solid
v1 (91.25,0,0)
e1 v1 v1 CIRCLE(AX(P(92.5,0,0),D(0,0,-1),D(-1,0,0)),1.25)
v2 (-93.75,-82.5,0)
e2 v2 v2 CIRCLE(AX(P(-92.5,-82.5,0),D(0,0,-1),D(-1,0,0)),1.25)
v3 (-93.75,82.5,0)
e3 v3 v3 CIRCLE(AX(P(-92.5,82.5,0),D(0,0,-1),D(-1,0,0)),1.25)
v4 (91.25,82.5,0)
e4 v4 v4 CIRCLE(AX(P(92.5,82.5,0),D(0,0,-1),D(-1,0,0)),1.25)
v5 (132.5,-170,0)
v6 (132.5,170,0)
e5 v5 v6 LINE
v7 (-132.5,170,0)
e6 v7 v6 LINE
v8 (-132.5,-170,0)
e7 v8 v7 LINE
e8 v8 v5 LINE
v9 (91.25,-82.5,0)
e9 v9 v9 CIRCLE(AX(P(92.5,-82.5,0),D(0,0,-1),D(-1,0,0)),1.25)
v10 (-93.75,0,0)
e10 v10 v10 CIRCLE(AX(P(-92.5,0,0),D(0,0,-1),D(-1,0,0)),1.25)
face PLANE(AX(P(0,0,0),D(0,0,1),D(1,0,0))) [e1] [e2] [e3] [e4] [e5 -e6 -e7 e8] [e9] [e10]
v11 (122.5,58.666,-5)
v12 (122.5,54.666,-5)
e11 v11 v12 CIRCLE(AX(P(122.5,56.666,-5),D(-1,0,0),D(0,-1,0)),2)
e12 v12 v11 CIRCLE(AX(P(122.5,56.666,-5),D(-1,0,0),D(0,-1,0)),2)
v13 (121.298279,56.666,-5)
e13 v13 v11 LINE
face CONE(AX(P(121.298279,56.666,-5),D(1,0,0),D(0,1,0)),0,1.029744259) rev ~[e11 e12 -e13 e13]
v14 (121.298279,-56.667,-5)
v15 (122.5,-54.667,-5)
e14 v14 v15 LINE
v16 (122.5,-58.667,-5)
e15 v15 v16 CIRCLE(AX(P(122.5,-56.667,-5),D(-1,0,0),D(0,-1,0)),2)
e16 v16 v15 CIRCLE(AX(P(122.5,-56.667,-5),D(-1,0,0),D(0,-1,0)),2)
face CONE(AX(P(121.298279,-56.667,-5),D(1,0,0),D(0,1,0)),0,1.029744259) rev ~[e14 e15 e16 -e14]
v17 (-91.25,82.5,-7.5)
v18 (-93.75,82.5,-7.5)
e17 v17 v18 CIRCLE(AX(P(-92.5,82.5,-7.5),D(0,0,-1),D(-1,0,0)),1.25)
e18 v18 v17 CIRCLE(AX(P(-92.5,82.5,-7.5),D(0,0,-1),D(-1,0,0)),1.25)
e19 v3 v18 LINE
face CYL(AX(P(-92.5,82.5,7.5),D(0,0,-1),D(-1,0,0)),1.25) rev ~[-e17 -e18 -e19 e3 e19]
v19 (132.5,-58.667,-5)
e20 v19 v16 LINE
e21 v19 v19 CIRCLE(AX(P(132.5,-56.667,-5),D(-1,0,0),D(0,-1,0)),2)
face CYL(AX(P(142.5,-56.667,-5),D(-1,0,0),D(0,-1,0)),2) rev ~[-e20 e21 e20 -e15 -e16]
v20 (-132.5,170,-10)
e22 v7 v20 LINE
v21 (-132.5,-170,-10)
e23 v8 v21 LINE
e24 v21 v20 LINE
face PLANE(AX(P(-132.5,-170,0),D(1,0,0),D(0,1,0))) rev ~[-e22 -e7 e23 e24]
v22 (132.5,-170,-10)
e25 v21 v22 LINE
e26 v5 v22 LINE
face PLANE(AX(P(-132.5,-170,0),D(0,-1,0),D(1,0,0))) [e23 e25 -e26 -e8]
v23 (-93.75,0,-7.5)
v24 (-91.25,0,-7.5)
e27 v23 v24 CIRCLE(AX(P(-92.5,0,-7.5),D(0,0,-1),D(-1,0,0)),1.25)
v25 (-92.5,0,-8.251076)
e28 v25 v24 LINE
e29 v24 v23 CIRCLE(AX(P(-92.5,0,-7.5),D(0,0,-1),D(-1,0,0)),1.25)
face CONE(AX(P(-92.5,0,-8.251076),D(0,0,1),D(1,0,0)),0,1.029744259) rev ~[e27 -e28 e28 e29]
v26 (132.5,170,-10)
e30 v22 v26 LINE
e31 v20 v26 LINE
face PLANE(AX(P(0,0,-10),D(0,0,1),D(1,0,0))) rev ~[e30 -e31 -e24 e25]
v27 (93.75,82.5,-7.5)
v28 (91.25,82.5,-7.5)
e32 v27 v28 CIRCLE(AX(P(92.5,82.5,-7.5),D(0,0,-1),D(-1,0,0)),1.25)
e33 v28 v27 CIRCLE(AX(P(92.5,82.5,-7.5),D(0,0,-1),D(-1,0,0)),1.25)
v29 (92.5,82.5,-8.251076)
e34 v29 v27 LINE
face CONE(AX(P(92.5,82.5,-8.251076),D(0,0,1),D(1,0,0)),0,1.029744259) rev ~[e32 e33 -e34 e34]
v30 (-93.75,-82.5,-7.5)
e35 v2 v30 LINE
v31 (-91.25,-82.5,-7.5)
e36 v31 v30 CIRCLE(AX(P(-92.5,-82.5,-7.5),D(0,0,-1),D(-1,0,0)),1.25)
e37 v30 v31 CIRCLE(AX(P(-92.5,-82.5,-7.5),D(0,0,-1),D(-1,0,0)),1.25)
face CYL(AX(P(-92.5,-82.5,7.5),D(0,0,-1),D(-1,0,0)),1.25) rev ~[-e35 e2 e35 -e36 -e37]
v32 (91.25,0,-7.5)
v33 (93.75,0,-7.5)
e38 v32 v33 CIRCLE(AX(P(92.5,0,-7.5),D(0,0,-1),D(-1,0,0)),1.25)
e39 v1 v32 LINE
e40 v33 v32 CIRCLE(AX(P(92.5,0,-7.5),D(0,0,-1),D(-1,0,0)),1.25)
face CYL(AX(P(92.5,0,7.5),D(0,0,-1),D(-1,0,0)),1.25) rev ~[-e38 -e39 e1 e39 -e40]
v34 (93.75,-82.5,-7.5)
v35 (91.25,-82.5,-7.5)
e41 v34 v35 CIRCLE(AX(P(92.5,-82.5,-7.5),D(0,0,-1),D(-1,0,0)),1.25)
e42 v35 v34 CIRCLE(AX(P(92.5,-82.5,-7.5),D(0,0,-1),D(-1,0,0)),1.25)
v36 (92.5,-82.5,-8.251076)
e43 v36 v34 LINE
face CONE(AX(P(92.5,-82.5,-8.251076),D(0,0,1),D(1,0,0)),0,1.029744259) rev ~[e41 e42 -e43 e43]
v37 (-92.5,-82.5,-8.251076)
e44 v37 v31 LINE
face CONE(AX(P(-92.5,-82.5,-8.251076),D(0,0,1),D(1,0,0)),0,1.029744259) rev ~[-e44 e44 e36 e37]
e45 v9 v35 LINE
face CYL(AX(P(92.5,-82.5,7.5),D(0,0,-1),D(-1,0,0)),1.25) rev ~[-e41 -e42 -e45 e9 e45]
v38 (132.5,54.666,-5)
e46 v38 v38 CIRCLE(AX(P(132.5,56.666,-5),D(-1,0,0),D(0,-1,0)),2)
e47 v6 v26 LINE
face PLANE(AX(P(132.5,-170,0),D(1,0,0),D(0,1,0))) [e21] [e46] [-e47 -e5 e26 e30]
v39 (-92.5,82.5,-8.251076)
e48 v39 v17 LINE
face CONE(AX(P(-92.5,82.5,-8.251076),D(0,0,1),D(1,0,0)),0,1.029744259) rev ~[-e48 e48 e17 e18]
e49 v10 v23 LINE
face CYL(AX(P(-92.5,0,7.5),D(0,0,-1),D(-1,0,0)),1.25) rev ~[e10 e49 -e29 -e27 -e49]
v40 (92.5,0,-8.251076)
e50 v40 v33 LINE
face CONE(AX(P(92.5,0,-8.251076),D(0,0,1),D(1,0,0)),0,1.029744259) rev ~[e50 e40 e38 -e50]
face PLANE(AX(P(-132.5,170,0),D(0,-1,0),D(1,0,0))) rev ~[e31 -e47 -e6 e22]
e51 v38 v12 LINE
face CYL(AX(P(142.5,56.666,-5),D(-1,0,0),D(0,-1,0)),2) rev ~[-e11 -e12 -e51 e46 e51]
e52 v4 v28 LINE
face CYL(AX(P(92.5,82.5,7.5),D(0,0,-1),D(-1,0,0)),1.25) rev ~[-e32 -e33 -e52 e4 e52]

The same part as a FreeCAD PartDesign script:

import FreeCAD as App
import Part
import Sketcher

V = App.Vector


def add_polygon(sketch, points):
    """Adds a closed chain of lines whose ends are joined by coincident constraints."""
    first, n = sketch.GeometryCount, len(points)
    for a, b in zip(points, points[1:] + points[:1]):
        sketch.addGeometry(Part.LineSegment(App.Vector(*a, 0), App.Vector(*b, 0)), False)
    for i in range(n):
        sketch.addConstraint(Sketcher.Constraint("Coincident", first + i, 2, first + (i + 1) % n, 1))

doc = App.newDocument("Part")
params = doc.addObject("Spreadsheet::Sheet", "Params")
for row, (alias, value) in enumerate([
    ("sketch1_width", "265 mm"),
    ("sketch1_height", "340 mm"),
    ("pad1_length", "10 mm"),
    ("sketch2_diameter", "2.5 mm"),
    ("hole_diameter", "2.5 mm"),
    ("hole_depth", "7.5 mm"),
    ("sketch3_diameter", "4 mm"),
    ("hole2_diameter", "4 mm"),
    ("hole2_depth", "10 mm"),
], start=1):
    params.set(f"A{row}", alias)
    params.set(f"B{row}", "=" + value)
    params.setAlias(f"B{row}", alias)

body = doc.addObject("PartDesign::Body", "Body")

# Sketch on XY plane
sketch1 = body.newObject("Sketcher::SketchObject", "Sketch")
sketch1.AttachmentSupport = (doc.getObject("XY_Plane"), [""])
sketch1.MapMode = "FlatFace"
add_polygon(sketch1, [(-132.5, 170), (-132.5, -170), (132.5, -170), (132.5, 170)])  # lines 0-3
sketch1.addConstraint([
    Sketcher.Constraint("Vertical", 0),
    Sketcher.Constraint("Horizontal", 1),
    Sketcher.Constraint("Vertical", 2),
    Sketcher.Constraint("Horizontal", 3),
    Sketcher.Constraint("Symmetric", 0, 2, 2, 2, -1, 1),
    Sketcher.Constraint("DistanceX", 1, 1, 1, 2, 265.0),
    Sketcher.Constraint("DistanceY", 0, 2, 0, 1, 340.0),
])
sketch1.setExpression("Constraints[9]", "Params.sketch1_width")
sketch1.setExpression("Constraints[10]", "Params.sketch1_height")
pad1 = body.newObject("PartDesign::Pad", "Pad")
pad1.Profile = sketch1
pad1.setExpression("Length", "Params.pad1_length")
pad1.Reversed = True

# Sketch on XY plane
sketch2 = body.newObject("Sketcher::SketchObject", "Sketch001")
sketch2.AttachmentSupport = (doc.getObject("XY_Plane"), [""])
sketch2.MapMode = "FlatFace"
sketch2.addGeometry([
    Part.Circle(V(-92.5, 82.5, 0), V(0, 0, 1), 1.25),  # 0
    Part.Circle(V(-92.5, 0, 0), V(0, 0, 1), 1.25),  # 1
    Part.Circle(V(-92.5, -82.5, 0), V(0, 0, 1), 1.25),  # 2
    Part.Circle(V(92.5, -82.5, 0), V(0, 0, 1), 1.25),  # 3
    Part.Circle(V(92.5, 0, 0), V(0, 0, 1), 1.25),  # 4
    Part.Circle(V(92.5, 82.5, 0), V(0, 0, 1), 1.25),  # 5
], False)
sketch2.addConstraint([
    Sketcher.Constraint("Equal", 0, 1),
    Sketcher.Constraint("Equal", 1, 2),
    Sketcher.Constraint("Equal", 2, 3),
    Sketcher.Constraint("Equal", 3, 4),
    Sketcher.Constraint("Equal", 4, 5),
    Sketcher.Constraint("Symmetric", 0, 3, 3, 3, -1, 1),
    Sketcher.Constraint("Symmetric", 1, 3, 4, 3, -1, 1),
    Sketcher.Constraint("Symmetric", 2, 3, 5, 3, -1, 1),
    Sketcher.Constraint("Symmetric", 2, 3, 3, 3, -2),
    Sketcher.Constraint("PointOnObject", 1, 3, -1),
    Sketcher.Constraint("Vertical", 0, 3, 1, 3),
    Sketcher.Constraint("Diameter", 0, 2.5),
    Sketcher.Constraint("DistanceY", 2, 3, 0, 3, 165.0),
    Sketcher.Constraint("DistanceX", 2, 3, 3, 3, 185.0),
])
sketch2.setExpression("Constraints[11]", "Params.sketch2_diameter")
doc.recompute()
hole = body.newObject("PartDesign::Hole", "Hole")
hole.Profile = sketch2
hole.ThreadType = "None"
hole.setExpression("Diameter", "Params.hole_diameter")
hole.DepthType = "Dimension"
hole.setExpression("Depth", "Params.hole_depth")
hole.DrillPoint = "Angled"
hole.DrillPointAngle = 118

# Sketch on YZ plane
sketch3 = body.newObject("Sketcher::SketchObject", "Sketch002")
sketch3.AttachmentSupport = (doc.getObject("YZ_Plane"), [""])
sketch3.MapMode = "FlatFace"
sketch3.AttachmentOffset = App.Placement(V(0, 0, 132.5), App.Rotation())
sketch3.addGeometry([
    Part.Circle(V(-56.667, -5, 0), V(0, 0, 1), 2),
    Part.Circle(V(56.666, -5, 0), V(0, 0, 1), 2),
], False)
sketch3.addConstraint([
    Sketcher.Constraint("Equal", 0, 1),
    Sketcher.Constraint("Horizontal", 0, 3, 1, 3),
    Sketcher.Constraint("Diameter", 0, 4.0),
    Sketcher.Constraint("DistanceY", 0, 3, -1, 1, 5.0),
    Sketcher.Constraint("DistanceX", 0, 3, -1, 1, 56.667),
    Sketcher.Constraint("DistanceX", -1, 1, 1, 3, 56.666),
])
sketch3.setExpression("Constraints[2]", "Params.sketch3_diameter")
doc.recompute()
hole2 = body.newObject("PartDesign::Hole", "Hole001")
hole2.Profile = sketch3
hole2.ThreadType = "None"
hole2.setExpression("Diameter", "Params.hole2_diameter")
hole2.DepthType = "Dimension"
hole2.setExpression("Depth", "Params.hole2_depth")
hole2.DrillPoint = "Angled"
hole2.DrillPointAngle = 118

doc.recompute()
